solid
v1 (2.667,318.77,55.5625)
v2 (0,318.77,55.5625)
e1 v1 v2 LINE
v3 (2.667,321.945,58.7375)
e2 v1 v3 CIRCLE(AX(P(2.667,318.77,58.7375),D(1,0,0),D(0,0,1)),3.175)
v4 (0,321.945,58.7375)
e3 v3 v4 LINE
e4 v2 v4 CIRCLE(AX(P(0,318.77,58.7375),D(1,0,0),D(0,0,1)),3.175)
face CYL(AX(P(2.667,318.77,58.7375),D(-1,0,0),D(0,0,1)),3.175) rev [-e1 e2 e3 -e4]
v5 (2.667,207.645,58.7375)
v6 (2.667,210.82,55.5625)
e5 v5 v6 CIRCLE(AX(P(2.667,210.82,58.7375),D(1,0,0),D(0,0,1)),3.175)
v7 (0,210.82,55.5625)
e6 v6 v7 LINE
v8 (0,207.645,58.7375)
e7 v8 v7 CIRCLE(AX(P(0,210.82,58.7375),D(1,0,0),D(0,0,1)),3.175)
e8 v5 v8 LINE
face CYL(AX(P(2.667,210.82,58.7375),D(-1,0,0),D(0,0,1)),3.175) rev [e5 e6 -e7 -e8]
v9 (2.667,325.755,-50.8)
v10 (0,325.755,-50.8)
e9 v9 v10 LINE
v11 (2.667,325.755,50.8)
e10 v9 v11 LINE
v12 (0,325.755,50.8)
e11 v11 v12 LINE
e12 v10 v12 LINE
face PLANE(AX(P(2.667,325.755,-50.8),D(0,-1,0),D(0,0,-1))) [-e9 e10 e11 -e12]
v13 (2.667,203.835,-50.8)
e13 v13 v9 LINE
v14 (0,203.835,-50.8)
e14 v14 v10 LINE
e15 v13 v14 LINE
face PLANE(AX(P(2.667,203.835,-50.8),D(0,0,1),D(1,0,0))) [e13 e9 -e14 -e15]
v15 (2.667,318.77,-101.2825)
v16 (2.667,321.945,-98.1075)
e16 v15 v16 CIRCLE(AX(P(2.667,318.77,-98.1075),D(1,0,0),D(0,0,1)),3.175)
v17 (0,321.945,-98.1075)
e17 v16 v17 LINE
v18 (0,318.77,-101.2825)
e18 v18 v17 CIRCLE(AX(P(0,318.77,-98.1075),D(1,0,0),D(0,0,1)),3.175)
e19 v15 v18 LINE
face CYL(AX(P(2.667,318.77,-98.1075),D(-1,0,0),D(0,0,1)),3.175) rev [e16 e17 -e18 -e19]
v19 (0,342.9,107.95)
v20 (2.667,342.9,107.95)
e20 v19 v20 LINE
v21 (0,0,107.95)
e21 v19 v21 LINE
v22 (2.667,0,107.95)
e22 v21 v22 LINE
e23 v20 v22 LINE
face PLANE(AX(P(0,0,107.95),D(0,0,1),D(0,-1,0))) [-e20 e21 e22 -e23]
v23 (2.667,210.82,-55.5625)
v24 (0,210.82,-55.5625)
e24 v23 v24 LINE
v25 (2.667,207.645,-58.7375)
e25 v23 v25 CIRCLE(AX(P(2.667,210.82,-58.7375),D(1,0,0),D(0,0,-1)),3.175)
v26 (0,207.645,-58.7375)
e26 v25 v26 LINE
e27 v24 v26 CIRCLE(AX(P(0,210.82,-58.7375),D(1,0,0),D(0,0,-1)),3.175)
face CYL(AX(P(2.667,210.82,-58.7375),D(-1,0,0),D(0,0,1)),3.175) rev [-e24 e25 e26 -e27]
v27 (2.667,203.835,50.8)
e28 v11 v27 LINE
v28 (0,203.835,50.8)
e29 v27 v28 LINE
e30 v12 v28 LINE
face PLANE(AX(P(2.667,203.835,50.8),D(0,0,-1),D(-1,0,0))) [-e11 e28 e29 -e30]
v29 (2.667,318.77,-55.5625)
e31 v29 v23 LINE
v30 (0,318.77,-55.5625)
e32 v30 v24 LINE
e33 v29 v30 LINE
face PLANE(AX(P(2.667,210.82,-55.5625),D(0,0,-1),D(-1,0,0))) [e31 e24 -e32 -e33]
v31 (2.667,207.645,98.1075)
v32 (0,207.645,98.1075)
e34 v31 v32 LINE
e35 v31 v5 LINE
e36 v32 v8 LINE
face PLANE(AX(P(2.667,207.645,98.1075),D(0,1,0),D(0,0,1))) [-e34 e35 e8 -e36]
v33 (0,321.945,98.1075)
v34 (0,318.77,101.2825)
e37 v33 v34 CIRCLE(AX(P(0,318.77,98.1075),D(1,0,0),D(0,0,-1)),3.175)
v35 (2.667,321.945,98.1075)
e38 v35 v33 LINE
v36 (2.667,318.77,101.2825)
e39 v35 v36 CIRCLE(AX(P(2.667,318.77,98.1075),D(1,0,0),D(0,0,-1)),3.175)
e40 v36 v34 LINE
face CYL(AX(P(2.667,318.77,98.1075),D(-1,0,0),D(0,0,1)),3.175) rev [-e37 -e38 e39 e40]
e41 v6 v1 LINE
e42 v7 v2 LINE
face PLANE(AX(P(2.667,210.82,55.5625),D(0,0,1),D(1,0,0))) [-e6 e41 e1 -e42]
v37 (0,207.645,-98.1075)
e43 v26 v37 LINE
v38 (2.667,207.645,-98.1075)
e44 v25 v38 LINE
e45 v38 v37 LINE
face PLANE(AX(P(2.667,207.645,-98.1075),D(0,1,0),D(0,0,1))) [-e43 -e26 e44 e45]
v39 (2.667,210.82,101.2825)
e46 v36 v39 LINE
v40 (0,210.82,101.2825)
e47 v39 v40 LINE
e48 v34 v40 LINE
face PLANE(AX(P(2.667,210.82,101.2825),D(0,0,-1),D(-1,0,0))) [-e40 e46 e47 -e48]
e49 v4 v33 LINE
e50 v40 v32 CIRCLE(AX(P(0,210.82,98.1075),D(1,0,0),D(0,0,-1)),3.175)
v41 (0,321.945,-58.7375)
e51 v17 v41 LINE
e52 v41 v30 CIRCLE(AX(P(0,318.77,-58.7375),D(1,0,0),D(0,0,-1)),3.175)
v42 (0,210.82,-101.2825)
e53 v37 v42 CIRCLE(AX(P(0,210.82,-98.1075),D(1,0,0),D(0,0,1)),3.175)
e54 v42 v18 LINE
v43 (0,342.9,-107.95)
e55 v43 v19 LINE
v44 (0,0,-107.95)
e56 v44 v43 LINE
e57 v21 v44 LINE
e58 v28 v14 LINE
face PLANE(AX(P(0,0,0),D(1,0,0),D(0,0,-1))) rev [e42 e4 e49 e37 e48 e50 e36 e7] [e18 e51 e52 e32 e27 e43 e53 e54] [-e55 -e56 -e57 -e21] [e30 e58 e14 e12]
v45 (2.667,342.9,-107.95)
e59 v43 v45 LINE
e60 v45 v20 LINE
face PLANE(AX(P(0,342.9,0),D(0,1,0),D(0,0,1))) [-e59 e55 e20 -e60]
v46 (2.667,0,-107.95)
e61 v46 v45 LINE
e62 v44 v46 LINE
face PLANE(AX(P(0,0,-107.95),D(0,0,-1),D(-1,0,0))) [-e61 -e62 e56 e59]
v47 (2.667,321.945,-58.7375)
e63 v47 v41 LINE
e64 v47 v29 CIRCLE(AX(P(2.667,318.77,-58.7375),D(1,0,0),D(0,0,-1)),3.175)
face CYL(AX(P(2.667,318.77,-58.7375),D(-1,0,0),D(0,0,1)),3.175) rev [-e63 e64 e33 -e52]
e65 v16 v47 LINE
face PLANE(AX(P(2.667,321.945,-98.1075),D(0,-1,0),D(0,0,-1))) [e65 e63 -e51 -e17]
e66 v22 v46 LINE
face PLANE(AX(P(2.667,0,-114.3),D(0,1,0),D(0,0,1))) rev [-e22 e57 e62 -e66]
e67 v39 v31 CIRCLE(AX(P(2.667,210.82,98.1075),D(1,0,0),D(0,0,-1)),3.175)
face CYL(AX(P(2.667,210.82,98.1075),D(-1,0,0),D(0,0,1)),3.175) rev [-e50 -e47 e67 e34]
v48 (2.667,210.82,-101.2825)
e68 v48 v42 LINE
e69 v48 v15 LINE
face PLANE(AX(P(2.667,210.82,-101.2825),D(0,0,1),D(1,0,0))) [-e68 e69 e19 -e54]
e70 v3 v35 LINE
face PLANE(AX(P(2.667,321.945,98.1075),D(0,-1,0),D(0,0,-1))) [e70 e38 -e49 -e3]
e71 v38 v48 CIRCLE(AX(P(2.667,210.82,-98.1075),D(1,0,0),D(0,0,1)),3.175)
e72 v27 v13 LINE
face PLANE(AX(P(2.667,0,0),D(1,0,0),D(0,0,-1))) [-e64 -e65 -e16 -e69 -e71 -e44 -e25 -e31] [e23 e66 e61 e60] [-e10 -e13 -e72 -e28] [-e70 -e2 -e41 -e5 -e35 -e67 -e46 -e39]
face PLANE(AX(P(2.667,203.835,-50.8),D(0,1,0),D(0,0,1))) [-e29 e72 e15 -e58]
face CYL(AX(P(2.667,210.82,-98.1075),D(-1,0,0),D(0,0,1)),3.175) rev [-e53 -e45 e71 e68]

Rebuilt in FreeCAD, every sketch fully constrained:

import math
import FreeCAD as App
import Part
import Sketcher
from FreeCAD import Vector
Q = App.Units.Quantity


def add_polygon(sketch, points):
    """Adds a closed chain of lines whose ends are joined by coincident constraints."""
    first, n = sketch.GeometryCount, len(points)
    for a, b in zip(points, points[1:] + points[:1]):
        sketch.addGeometry(Part.LineSegment(App.Vector(*a, 0), App.Vector(*b, 0)), False)
    for i in range(n):
        sketch.addConstraint(Sketcher.Constraint("Coincident", first + i, 2, first + (i + 1) % n, 1))

doc = App.newDocument("Part")
params = doc.addObject("Spreadsheet::Sheet", "Params")
for row, (alias, value) in enumerate([
    ("sketch1_height", "9 in"),
    ("sketch1_height2", "4 in"),
    ("sketch1_width", "4.8 in"),
    ("sketch1_radius", "0.125 in"),
    ("sketch1_width2", "13.75 in"),
    ("pad1_length", "0.105 in"),
    ("sketch2_height", "9 in"),
    ("sketch2_width", "13.5 in"),
    ("sketch2_height2", "8.5 in"),
    ("sketch2_width2", "13.75 in"),
], start=1):
    params.set(f"A{row}", alias)
    params.set(f"B{row}", "=" + value)
    params.setAlias(f"B{row}", alias)

body = doc.addObject("PartDesign::Body", "Body")

# Sketch on YZ plane
sketch1 = body.newObject("Sketcher::SketchObject", "Sketch")
sketch1.AttachmentSupport = (doc.getObject("YZ_Plane"), [""])
sketch1.MapMode = "FlatFace"
add_polygon(sketch1, [(349.2, 114.3), (0, 114.3), (0, -114.3), (349.2, -114.3)])  # lines 0-3
sketch1.addGeometry(Part.LineSegment(Vector(207.6, 58.7, 0), Vector(207.6, 98.1, 0)), False)  # 4
sketch1.addGeometry(Part.ArcOfCircle(Part.Circle(Vector(210.8, 98.1, 0), Vector(0, 0, 1), 3.2), math.radians(90), math.radians(180)), False)  # 5
sketch1.addGeometry(Part.LineSegment(Vector(210.8, 101.3, 0), Vector(318.8, 101.3, 0)), False)  # 6
sketch1.addGeometry(Part.ArcOfCircle(Part.Circle(Vector(318.8, 98.1, 0), Vector(0, 0, 1), 3.2), math.radians(0), math.radians(90)), False)  # 7
sketch1.addGeometry(Part.LineSegment(Vector(321.9, 98.1, 0), Vector(321.9, 58.7, 0)), False)  # 8
sketch1.addGeometry(Part.ArcOfCircle(Part.Circle(Vector(318.8, 58.7, 0), Vector(0, 0, 1), 3.2), math.radians(-90), math.radians(0)), False)  # 9
sketch1.addGeometry(Part.LineSegment(Vector(318.8, 55.6, 0), Vector(210.8, 55.6, 0)), False)  # 10
sketch1.addGeometry(Part.ArcOfCircle(Part.Circle(Vector(210.8, 58.7, 0), Vector(0, 0, 1), 3.2), math.radians(-180), math.radians(-90)), False)  # 11
add_polygon(sketch1, [(203.8, -50.8), (203.8, 50.8), (325.8, 50.8), (325.8, -50.8)])  # lines 12-15
sketch1.addGeometry(Part.ArcOfCircle(Part.Circle(Vector(210.8, -98.1, 0), Vector(0, 0, 1), 3.2), math.radians(-180), math.radians(-90)), False)  # 16
sketch1.addGeometry(Part.LineSegment(Vector(207.6, -98.1, 0), Vector(207.6, -58.7, 0)), False)  # 17
sketch1.addGeometry(Part.ArcOfCircle(Part.Circle(Vector(210.8, -58.7, 0), Vector(0, 0, 1), 3.2), math.radians(90), math.radians(180)), False)  # 18
sketch1.addGeometry(Part.LineSegment(Vector(210.8, -55.6, 0), Vector(318.8, -55.6, 0)), False)  # 19
sketch1.addGeometry(Part.ArcOfCircle(Part.Circle(Vector(318.8, -58.7, 0), Vector(0, 0, 1), 3.2), math.radians(0), math.radians(90)), False)  # 20
sketch1.addGeometry(Part.LineSegment(Vector(321.9, -58.7, 0), Vector(321.9, -98.1, 0)), False)  # 21
sketch1.addGeometry(Part.ArcOfCircle(Part.Circle(Vector(318.8, -98.1, 0), Vector(0, 0, 1), 3.2), math.radians(-90), math.radians(0)), False)  # 22
sketch1.addGeometry(Part.LineSegment(Vector(318.8, -101.3, 0), Vector(210.8, -101.3, 0)), False)  # 23
sketch1.addConstraint(Sketcher.Constraint("Tangent", 4, 2, 5, 2))
sketch1.addConstraint(Sketcher.Constraint("Tangent", 5, 1, 6, 1))
sketch1.addConstraint(Sketcher.Constraint("Tangent", 6, 2, 7, 2))
sketch1.addConstraint(Sketcher.Constraint("Tangent", 7, 1, 8, 1))
sketch1.addConstraint(Sketcher.Constraint("Tangent", 8, 2, 9, 2))
sketch1.addConstraint(Sketcher.Constraint("Tangent", 9, 1, 10, 1))
sketch1.addConstraint(Sketcher.Constraint("Tangent", 10, 2, 11, 2))
sketch1.addConstraint(Sketcher.Constraint("Tangent", 11, 1, 4, 1))
sketch1.addConstraint(Sketcher.Constraint("Tangent", 16, 1, 17, 1))
sketch1.addConstraint(Sketcher.Constraint("Tangent", 17, 2, 18, 2))
sketch1.addConstraint(Sketcher.Constraint("Tangent", 18, 1, 19, 1))
sketch1.addConstraint(Sketcher.Constraint("Tangent", 19, 2, 20, 2))
sketch1.addConstraint(Sketcher.Constraint("Tangent", 20, 1, 21, 1))
sketch1.addConstraint(Sketcher.Constraint("Tangent", 21, 2, 22, 2))
sketch1.addConstraint(Sketcher.Constraint("Tangent", 22, 1, 23, 1))
sketch1.addConstraint(Sketcher.Constraint("Tangent", 23, 2, 16, 2))
sketch1.addConstraint(Sketcher.Constraint("Horizontal", 0))
sketch1.addConstraint(Sketcher.Constraint("Vertical", 1))
sketch1.addConstraint(Sketcher.Constraint("Horizontal", 2))
sketch1.addConstraint(Sketcher.Constraint("Vertical", 3))
sketch1.addConstraint(Sketcher.Constraint("Vertical", 4))
sketch1.addConstraint(Sketcher.Constraint("Horizontal", 6))
sketch1.addConstraint(Sketcher.Constraint("Vertical", 8))
sketch1.addConstraint(Sketcher.Constraint("Horizontal", 10))
sketch1.addConstraint(Sketcher.Constraint("Vertical", 12))
sketch1.addConstraint(Sketcher.Constraint("Horizontal", 13))
sketch1.addConstraint(Sketcher.Constraint("Vertical", 14))
sketch1.addConstraint(Sketcher.Constraint("Horizontal", 15))
sketch1.addConstraint(Sketcher.Constraint("Vertical", 17))
sketch1.addConstraint(Sketcher.Constraint("Horizontal", 19))
sketch1.addConstraint(Sketcher.Constraint("Vertical", 21))
sketch1.addConstraint(Sketcher.Constraint("Horizontal", 23))
sketch1.addConstraint(Sketcher.Constraint("Equal", 5, 7))
sketch1.addConstraint(Sketcher.Constraint("Equal", 7, 9))
sketch1.addConstraint(Sketcher.Constraint("Equal", 9, 11))
sketch1.addConstraint(Sketcher.Constraint("Equal", 11, 16))
sketch1.addConstraint(Sketcher.Constraint("Equal", 16, 18))
sketch1.addConstraint(Sketcher.Constraint("Equal", 18, 20))
sketch1.addConstraint(Sketcher.Constraint("Equal", 20, 22))
sketch1.addConstraint(Sketcher.Constraint("Symmetric", 0, 2, 1, 2, -1, 1))
sketch1.addConstraint(Sketcher.Constraint("Symmetric", 5, 3, 16, 3, -1))
sketch1.addConstraint(Sketcher.Constraint("Symmetric", 9, 3, 20, 3, -1))
sketch1.addConstraint(Sketcher.Constraint("DistanceY", 1, 2, 1, 1, Q("9 in")))
sketch1.addConstraint(Sketcher.Constraint("DistanceY", 12, 1, 12, 2, Q("4 in")))
sketch1.addConstraint(Sketcher.Constraint("DistanceX", 13, 1, 13, 2, Q("4.8 in")))
sketch1.addConstraint(Sketcher.Constraint("DistanceY", -1, 1, 12, 2, Q("2 in")))
sketch1.addConstraint(Sketcher.Constraint("Radius", 5, Q("0.125 in")))
sketch1.addConstraint(Sketcher.Constraint("DistanceX", 0, 2, 0, 1, Q("13.75 in")))
sketch1.addConstraint(Sketcher.Constraint("DistanceX", 6, 1, 6, 2, Q("4.25 in")))
sketch1.addConstraint(Sketcher.Constraint("DistanceY", 4, 1, 4, 2, Q("1.55 in")))
sketch1.addConstraint(Sketcher.Constraint("DistanceX", -1, 1, 5, 3, Q("8.3 in")))
sketch1.addConstraint(Sketcher.Constraint("DistanceX", 12, 2, 11, 1, Q("0.15 in")))
sketch1.addConstraint(Sketcher.Constraint("DistanceY", -1, 1, 9, 3, Q("2.3125 in")))
sketch1.setExpression("Constraints[50]", "Params.sketch1_height")
sketch1.setExpression("Constraints[51]", "Params.sketch1_height2")
sketch1.setExpression("Constraints[52]", "Params.sketch1_width")
sketch1.setExpression("Constraints[54]", "Params.sketch1_radius")
sketch1.setExpression("Constraints[55]", "Params.sketch1_width2")
pad1 = body.newObject("PartDesign::Pad", "Pad")
pad1.Profile = sketch1
pad1.setExpression("Length", "Params.pad1_length")

# Sketch on YZ plane
sketch2 = body.newObject("Sketcher::SketchObject", "Sketch001")
sketch2.AttachmentSupport = (doc.getObject("YZ_Plane"), [""])
sketch2.MapMode = "FlatFace"
sketch2.AttachmentOffset = App.Placement(Vector(0, 0, 0.105 * 25.4), App.Rotation())
add_polygon(sketch2, [(349, -114), (349, 114), (0, 114), (0, 108), (343, 108), (343, -108), (0, -108), (0, -114)])  # lines 0-7
sketch2.addConstraint(Sketcher.Constraint("Vertical", 0))
sketch2.addConstraint(Sketcher.Constraint("Horizontal", 1))
sketch2.addConstraint(Sketcher.Constraint("Vertical", 2))
sketch2.addConstraint(Sketcher.Constraint("Horizontal", 3))
sketch2.addConstraint(Sketcher.Constraint("Vertical", 4))
sketch2.addConstraint(Sketcher.Constraint("Horizontal", 5))
sketch2.addConstraint(Sketcher.Constraint("Vertical", 6))
sketch2.addConstraint(Sketcher.Constraint("Horizontal", 7))
sketch2.addConstraint(Sketcher.Constraint("Symmetric", 2, 2, 5, 2, -1, 1))
sketch2.addConstraint(Sketcher.Constraint("Symmetric", 1, 2, 6, 2, -1))
sketch2.addConstraint(Sketcher.Constraint("DistanceY", 0, 1, 0, 2, Q("9 in")))
sketch2.addConstraint(Sketcher.Constraint("DistanceX", 3, 1, 3, 2, Q("13.5 in")))
sketch2.addConstraint(Sketcher.Constraint("DistanceY", 4, 2, 4, 1, Q("8.5 in")))
sketch2.addConstraint(Sketcher.Constraint("DistanceX", 1, 2, 1, 1, Q("13.75 in")))
sketch2.setExpression("Constraints[18]", "Params.sketch2_height")
sketch2.setExpression("Constraints[19]", "Params.sketch2_width")
sketch2.setExpression("Constraints[20]", "Params.sketch2_height2")
sketch2.setExpression("Constraints[21]", "Params.sketch2_width2")
pocket1 = body.newObject("PartDesign::Pocket", "Pocket")
pocket1.Profile = sketch2
pocket1.Type = "ThroughAll"

doc.recompute()
